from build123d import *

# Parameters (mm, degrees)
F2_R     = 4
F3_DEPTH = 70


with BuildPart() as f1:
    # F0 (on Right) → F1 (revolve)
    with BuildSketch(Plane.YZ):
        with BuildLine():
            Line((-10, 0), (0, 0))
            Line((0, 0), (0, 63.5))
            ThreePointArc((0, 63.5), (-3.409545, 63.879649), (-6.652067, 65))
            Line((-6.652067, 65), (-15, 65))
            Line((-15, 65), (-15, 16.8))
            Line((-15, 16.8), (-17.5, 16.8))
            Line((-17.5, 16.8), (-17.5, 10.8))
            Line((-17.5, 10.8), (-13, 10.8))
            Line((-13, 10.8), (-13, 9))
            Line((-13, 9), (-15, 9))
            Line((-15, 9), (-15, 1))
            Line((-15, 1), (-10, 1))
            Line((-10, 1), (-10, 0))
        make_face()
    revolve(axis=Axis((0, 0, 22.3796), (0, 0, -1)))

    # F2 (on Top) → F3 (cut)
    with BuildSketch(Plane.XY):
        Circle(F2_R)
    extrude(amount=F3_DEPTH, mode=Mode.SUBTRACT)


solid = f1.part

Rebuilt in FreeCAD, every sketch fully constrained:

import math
import FreeCAD as App
import Part
import Sketcher

V = App.Vector

doc = App.newDocument("Part")
body = doc.addObject("PartDesign::Body", "Body")

# Sketch on YZ plane
sketch1 = body.newObject("Sketcher::SketchObject", "Sketch")
sketch1.AttachmentSupport = (doc.getObject("YZ_Plane"), [""])
sketch1.MapMode = "FlatFace"
sketch1.addGeometry([
    Part.LineSegment(V(-10, 0, 0), V(0, 0, 0)),  # 0
    Part.LineSegment(V(0, 0, 0), V(0, 63.5, 0)),  # 1
    Part.ArcOfCircle(Part.Circle(V(0, 79, 0), V(0, 0, 1), 15.5), math.radians(-115), math.radians(-90)),  # 2
    Part.LineSegment(V(-6.7, 65, 0), V(-15, 65, 0)),  # 3
    Part.LineSegment(V(-15, 65, 0), V(-15, 16.8, 0)),  # 4
    Part.LineSegment(V(-15, 16.8, 0), V(-17.5, 16.8, 0)),  # 5
    Part.LineSegment(V(-17.5, 16.8, 0), V(-17.5, 10.8, 0)),  # 6
    Part.LineSegment(V(-17.5, 10.8, 0), V(-13, 10.8, 0)),  # 7
    Part.LineSegment(V(-13, 10.8, 0), V(-13, 9, 0)),  # 8
    Part.LineSegment(V(-13, 9, 0), V(-15, 9, 0)),  # 9
    Part.LineSegment(V(-15, 9, 0), V(-15, 1, 0)),  # 10
    Part.LineSegment(V(-15, 1, 0), V(-10, 1, 0)),  # 11
    Part.LineSegment(V(-10, 1, 0), V(-10, 0, 0)),  # 12
], False)
sketch1.addConstraint([
    Sketcher.Constraint("Coincident", 0, 2, 1, 1),
    Sketcher.Constraint("Coincident", 1, 2, 2, 2),
    Sketcher.Constraint("Coincident", 2, 1, 3, 1),
    Sketcher.Constraint("Coincident", 3, 2, 4, 1),
    Sketcher.Constraint("Coincident", 4, 2, 5, 1),
    Sketcher.Constraint("Coincident", 5, 2, 6, 1),
    Sketcher.Constraint("Coincident", 6, 2, 7, 1),
    Sketcher.Constraint("Coincident", 7, 2, 8, 1),
    Sketcher.Constraint("Coincident", 8, 2, 9, 1),
    Sketcher.Constraint("Coincident", 9, 2, 10, 1),
    Sketcher.Constraint("Coincident", 10, 2, 11, 1),
    Sketcher.Constraint("Coincident", 11, 2, 12, 1),
    Sketcher.Constraint("Coincident", 12, 2, 0, 1),
    Sketcher.Constraint("Horizontal", 0),
    Sketcher.Constraint("Vertical", 1),
    Sketcher.Constraint("Horizontal", 3),
    Sketcher.Constraint("Vertical", 4),
    Sketcher.Constraint("Horizontal", 5),
    Sketcher.Constraint("Vertical", 6),
    Sketcher.Constraint("Horizontal", 7),
    Sketcher.Constraint("Vertical", 8),
    Sketcher.Constraint("Horizontal", 9),
    Sketcher.Constraint("Vertical", 10),
    Sketcher.Constraint("Horizontal", 11),
    Sketcher.Constraint("Vertical", 12),
    Sketcher.Constraint("Coincident", 0, 2, -1, 1),
    Sketcher.Constraint("Vertical", 4, 2, 9, 2),
    Sketcher.Constraint("DistanceX", 0, 1, 0, 2, 10.0),
    Sketcher.Constraint("DistanceX", 9, 2, 9, 1, 2.0),
    Sketcher.Constraint("DistanceX", 11, 1, 11, 2, 5.0),
    Sketcher.Constraint("DistanceY", 6, 2, 6, 1, 6.0),
    Sketcher.Constraint("DistanceY", 10, 2, 10, 1, 8.0),
    Sketcher.Constraint("DistanceY", 12, 2, 12, 1, 1.0),
    Sketcher.Constraint("DistanceX", 5, 2, 5, 1, 2.5),
    Sketcher.Constraint("DistanceY", 1, 1, 1, 2, 63.5),
    Sketcher.Constraint("DistanceY", 4, 2, 4, 1, 48.2),
    Sketcher.Constraint("DistanceY", 8, 2, 8, 1, 1.8),
    Sketcher.Constraint("Radius", 2, 15.499982),
    Sketcher.Constraint("DistanceX", 3, 2, 3, 1, 8.347933),
])
revolution = body.newObject("PartDesign::Revolution", "Revolution")
revolution.Profile = sketch1
revolution.ReferenceAxis = (sketch1, ["V_Axis"])
revolution.Angle = 360

# Sketch on XY plane
sketch2 = body.newObject("Sketcher::SketchObject", "Sketch001")
sketch2.AttachmentSupport = (doc.getObject("XY_Plane"), [""])
sketch2.MapMode = "FlatFace"
sketch2.addGeometry(Part.Circle(V(0, 0, 0), V(0, 0, 1), 4), False)
sketch2.addConstraint([
    Sketcher.Constraint("Coincident", 0, 3, -1, 1),
    Sketcher.Constraint("Diameter", 0, 8.0),
])
pocket1 = body.newObject("PartDesign::Pocket", "Pocket")
pocket1.Profile = sketch2
pocket1.Length = 70
pocket1.Reversed = True

doc.recompute()
